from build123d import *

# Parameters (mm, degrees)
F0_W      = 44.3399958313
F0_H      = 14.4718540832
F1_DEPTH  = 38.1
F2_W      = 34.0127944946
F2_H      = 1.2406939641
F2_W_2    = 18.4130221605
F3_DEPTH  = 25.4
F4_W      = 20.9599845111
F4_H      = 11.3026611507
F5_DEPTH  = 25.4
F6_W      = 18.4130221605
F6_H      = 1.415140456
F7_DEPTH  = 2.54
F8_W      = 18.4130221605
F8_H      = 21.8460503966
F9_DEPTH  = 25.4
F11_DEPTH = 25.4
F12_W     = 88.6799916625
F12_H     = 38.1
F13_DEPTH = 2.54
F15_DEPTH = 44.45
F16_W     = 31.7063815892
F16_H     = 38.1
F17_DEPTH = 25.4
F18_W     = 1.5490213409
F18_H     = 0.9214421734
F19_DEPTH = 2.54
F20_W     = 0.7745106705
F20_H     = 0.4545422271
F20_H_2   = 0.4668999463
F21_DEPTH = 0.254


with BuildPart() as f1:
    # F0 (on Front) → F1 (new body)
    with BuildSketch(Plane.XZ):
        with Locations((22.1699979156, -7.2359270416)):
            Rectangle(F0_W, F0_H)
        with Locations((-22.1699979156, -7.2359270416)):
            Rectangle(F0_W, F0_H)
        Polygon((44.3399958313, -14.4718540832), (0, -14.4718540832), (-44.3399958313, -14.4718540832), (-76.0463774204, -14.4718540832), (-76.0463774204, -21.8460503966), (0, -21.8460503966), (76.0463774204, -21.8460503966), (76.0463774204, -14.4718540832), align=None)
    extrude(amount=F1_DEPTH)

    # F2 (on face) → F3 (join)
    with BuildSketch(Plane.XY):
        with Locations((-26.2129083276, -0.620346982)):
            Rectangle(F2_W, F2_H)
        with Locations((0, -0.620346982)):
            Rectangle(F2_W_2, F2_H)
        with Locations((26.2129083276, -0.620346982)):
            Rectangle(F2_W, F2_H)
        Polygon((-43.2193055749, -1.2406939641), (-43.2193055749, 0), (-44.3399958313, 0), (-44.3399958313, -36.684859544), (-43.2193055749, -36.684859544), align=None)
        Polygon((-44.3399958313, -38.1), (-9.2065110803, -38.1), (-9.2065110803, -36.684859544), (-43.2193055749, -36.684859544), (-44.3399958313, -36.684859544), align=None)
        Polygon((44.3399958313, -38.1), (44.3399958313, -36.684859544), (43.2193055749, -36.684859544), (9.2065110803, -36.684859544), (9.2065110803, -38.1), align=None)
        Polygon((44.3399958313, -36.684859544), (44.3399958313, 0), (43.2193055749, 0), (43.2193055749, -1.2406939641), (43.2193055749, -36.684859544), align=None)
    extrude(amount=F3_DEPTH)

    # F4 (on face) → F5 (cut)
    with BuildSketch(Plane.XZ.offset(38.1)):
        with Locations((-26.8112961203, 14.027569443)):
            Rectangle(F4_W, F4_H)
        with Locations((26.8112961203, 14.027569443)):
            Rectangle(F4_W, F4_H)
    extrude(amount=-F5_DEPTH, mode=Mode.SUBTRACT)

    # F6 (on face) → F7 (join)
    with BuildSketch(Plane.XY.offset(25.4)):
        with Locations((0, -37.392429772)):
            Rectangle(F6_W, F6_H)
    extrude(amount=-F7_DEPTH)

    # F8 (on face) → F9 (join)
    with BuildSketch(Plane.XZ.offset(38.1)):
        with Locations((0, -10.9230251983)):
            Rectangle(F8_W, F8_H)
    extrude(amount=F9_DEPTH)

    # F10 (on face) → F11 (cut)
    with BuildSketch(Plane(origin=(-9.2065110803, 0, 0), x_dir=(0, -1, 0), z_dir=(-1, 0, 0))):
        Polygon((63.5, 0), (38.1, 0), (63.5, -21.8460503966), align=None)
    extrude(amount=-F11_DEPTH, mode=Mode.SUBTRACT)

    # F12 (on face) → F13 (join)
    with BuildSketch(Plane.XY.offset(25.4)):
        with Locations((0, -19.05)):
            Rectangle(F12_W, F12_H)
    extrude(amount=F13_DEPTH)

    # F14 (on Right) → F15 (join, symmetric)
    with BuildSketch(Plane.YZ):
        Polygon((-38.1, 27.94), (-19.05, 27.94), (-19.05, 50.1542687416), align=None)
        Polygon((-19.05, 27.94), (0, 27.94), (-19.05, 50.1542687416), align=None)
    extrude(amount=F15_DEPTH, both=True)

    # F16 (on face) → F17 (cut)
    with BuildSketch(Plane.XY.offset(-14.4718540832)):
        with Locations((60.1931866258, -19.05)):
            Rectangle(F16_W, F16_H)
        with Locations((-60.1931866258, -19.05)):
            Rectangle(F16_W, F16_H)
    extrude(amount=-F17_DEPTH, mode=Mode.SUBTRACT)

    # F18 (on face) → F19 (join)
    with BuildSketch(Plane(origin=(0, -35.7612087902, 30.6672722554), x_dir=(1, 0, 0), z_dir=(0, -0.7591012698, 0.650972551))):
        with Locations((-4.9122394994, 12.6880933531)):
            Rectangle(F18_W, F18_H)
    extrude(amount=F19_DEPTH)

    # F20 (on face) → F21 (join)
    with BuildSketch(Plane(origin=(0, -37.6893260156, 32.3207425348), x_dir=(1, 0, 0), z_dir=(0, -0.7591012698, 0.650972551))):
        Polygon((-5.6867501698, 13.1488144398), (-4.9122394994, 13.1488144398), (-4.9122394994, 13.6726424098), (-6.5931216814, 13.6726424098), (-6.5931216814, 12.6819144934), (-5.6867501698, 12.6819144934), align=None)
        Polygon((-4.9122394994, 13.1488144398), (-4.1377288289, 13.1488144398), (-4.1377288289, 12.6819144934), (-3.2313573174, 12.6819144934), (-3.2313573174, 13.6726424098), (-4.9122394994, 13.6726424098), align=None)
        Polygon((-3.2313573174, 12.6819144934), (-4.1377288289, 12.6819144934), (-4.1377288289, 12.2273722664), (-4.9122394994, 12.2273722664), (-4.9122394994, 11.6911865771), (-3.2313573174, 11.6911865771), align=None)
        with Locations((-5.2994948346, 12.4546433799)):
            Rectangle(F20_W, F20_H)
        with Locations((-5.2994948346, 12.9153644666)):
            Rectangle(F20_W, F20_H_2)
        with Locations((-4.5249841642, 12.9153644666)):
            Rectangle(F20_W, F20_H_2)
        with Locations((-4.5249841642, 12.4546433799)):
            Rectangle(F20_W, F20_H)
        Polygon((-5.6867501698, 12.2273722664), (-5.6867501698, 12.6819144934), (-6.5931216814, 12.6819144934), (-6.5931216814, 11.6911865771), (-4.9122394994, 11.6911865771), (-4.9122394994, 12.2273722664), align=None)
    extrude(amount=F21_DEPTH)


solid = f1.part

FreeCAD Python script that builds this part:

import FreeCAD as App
import Part
import Sketcher
Q = App.Units.Quantity

doc = App.newDocument("Part")
body = doc.addObject("PartDesign::Body", "Body")

# Sketch on XZ plane
sketch1 = doc.addObject("Sketcher::SketchObject", "Sketch")
body.addObject(sketch1)
sketch1.AttachmentSupport = (doc.XZ_Plane, [""])
sketch1.MapMode = "FlatFace"
sketch1.addGeometry([
    Part.LineSegment(App.Vector(44, -14, 0), App.Vector(44, 0, 0)),  # 0
    Part.LineSegment(App.Vector(44, 0, 0), App.Vector(-44, 0, 0)),  # 1
    Part.LineSegment(App.Vector(-44, 0, 0), App.Vector(-44, -14, 0)),  # 2
    Part.LineSegment(App.Vector(-44, -14, 0), App.Vector(-76, -14, 0)),  # 3
    Part.LineSegment(App.Vector(-76, -14, 0), App.Vector(-76, -22, 0)),  # 4
    Part.LineSegment(App.Vector(-76, -22, 0), App.Vector(76, -22, 0)),  # 5
    Part.LineSegment(App.Vector(76, -22, 0), App.Vector(76, -14, 0)),  # 6
    Part.LineSegment(App.Vector(76, -14, 0), App.Vector(44, -14, 0)),  # 7
], False)
sketch1.addConstraint([
    Sketcher.Constraint("Coincident", 0, 2, 1, 1),
    Sketcher.Constraint("Coincident", 1, 2, 2, 1),
    Sketcher.Constraint("Coincident", 2, 2, 3, 1),
    Sketcher.Constraint("Coincident", 3, 2, 4, 1),
    Sketcher.Constraint("Coincident", 4, 2, 5, 1),
    Sketcher.Constraint("Coincident", 5, 2, 6, 1),
    Sketcher.Constraint("Coincident", 6, 2, 7, 1),
    Sketcher.Constraint("Coincident", 7, 2, 0, 1),
    Sketcher.Constraint("Vertical", 0),
    Sketcher.Constraint("Horizontal", 1),
    Sketcher.Constraint("Vertical", 2),
    Sketcher.Constraint("Horizontal", 3),
    Sketcher.Constraint("Vertical", 4),
    Sketcher.Constraint("Horizontal", 5),
    Sketcher.Constraint("Vertical", 6),
    Sketcher.Constraint("Horizontal", 7),
    Sketcher.Constraint("Symmetric", 0, 2, 1, 2, -1, 1),
    Sketcher.Constraint("Symmetric", 3, 2, 6, 2, -2),
    Sketcher.Constraint("DistanceX", 1, 2, 1, 1, Q("88.679992 mm")),
    Sketcher.Constraint("DistanceX", 3, 2, 3, 1, Q("31.706382 mm")),
    Sketcher.Constraint("DistanceY", 0, 1, 0, 2, Q("14.471854 mm")),
    Sketcher.Constraint("DistanceY", 4, 2, 4, 1, Q("7.374196 mm")),
])
pad1 = doc.addObject("PartDesign::Pad", "Pad")
body.addObject(pad1)
pad1.Profile = sketch1
pad1.Length = Q("1.5 in")

# Sketch on XY plane
sketch2 = doc.addObject("Sketcher::SketchObject", "Sketch001")
body.addObject(sketch2)
sketch2.AttachmentSupport = (doc.XY_Plane, [""])
sketch2.MapMode = "FlatFace"
sketch2.addGeometry([
    Part.LineSegment(App.Vector(-43.2, -1.2, 0), App.Vector(43.2, -1.2, 0)),  # 0
    Part.LineSegment(App.Vector(43.2, -1.2, 0), App.Vector(43.2, -36.7, 0)),  # 1
    Part.LineSegment(App.Vector(43.2, -36.7, 0), App.Vector(9.2, -36.7, 0)),  # 2
    Part.LineSegment(App.Vector(9.2, -36.7, 0), App.Vector(9.2, -38.1, 0)),  # 3
    Part.LineSegment(App.Vector(9.2, -38.1, 0), App.Vector(44.3, -38.1, 0)),  # 4
    Part.LineSegment(App.Vector(44.3, -38.1, 0), App.Vector(44.3, 0, 0)),  # 5
    Part.LineSegment(App.Vector(44.3, 0, 0), App.Vector(-44.3, 0, 0)),  # 6
    Part.LineSegment(App.Vector(-44.3, 0, 0), App.Vector(-44.3, -38.1, 0)),  # 7
    Part.LineSegment(App.Vector(-44.3, -38.1, 0), App.Vector(-9.2, -38.1, 0)),  # 8
    Part.LineSegment(App.Vector(-9.2, -38.1, 0), App.Vector(-9.2, -36.7, 0)),  # 9
    Part.LineSegment(App.Vector(-9.2, -36.7, 0), App.Vector(-43.2, -36.7, 0)),  # 10
    Part.LineSegment(App.Vector(-43.2, -36.7, 0), App.Vector(-43.2, -1.2, 0)),  # 11
], False)
sketch2.addConstraint([
    Sketcher.Constraint("Coincident", 0, 2, 1, 1),
    Sketcher.Constraint("Coincident", 1, 2, 2, 1),
    Sketcher.Constraint("Coincident", 2, 2, 3, 1),
    Sketcher.Constraint("Coincident", 3, 2, 4, 1),
    Sketcher.Constraint("Coincident", 4, 2, 5, 1),
    Sketcher.Constraint("Coincident", 5, 2, 6, 1),
    Sketcher.Constraint("Coincident", 6, 2, 7, 1),
    Sketcher.Constraint("Coincident", 7, 2, 8, 1),
    Sketcher.Constraint("Coincident", 8, 2, 9, 1),
    Sketcher.Constraint("Coincident", 9, 2, 10, 1),
    Sketcher.Constraint("Coincident", 10, 2, 11, 1),
    Sketcher.Constraint("Coincident", 11, 2, 0, 1),
    Sketcher.Constraint("Horizontal", 0),
    Sketcher.Constraint("Vertical", 1),
    Sketcher.Constraint("Horizontal", 2),
    Sketcher.Constraint("Vertical", 3),
    Sketcher.Constraint("Horizontal", 4),
    Sketcher.Constraint("Vertical", 5),
    Sketcher.Constraint("Horizontal", 6),
    Sketcher.Constraint("Vertical", 7),
    Sketcher.Constraint("Horizontal", 8),
    Sketcher.Constraint("Vertical", 9),
    Sketcher.Constraint("Horizontal", 10),
    Sketcher.Constraint("Vertical", 11),
    Sketcher.Constraint("Symmetric", 5, 2, 6, 2, -1, 1),
    Sketcher.Constraint("Symmetric", 3, 2, 8, 2, -2),
    Sketcher.Constraint("Symmetric", 1, 2, 10, 2, -2),
    Sketcher.Constraint("DistanceY", 5, 1, 5, 2, Q("1.5 in")),
    Sketcher.Constraint("DistanceX", 0, 1, 0, 2, Q("86.438611 mm")),
    Sketcher.Constraint("DistanceX", 6, 2, 6, 1, Q("88.679992 mm")),
    Sketcher.Constraint("DistanceY", 3, 2, 3, 1, Q("1.41514 mm")),
    Sketcher.Constraint("DistanceX", 2, 2, 2, 1, Q("34.012794 mm")),
    Sketcher.Constraint("DistanceY", 1, 2, 1, 1, Q("35.444166 mm")),
])
pad2 = doc.addObject("PartDesign::Pad", "Pad001")
body.addObject(pad2)
pad2.Profile = sketch2
pad2.Length = Q("1 in")

# Sketch on XZ plane
sketch3 = doc.addObject("Sketcher::SketchObject", "Sketch002")
body.addObject(sketch3)
sketch3.AttachmentSupport = (doc.XZ_Plane, [""])
sketch3.MapMode = "FlatFace"
sketch3.AttachmentOffset = App.Placement(App.Vector(0, 0, 1.5 * 25.4), App.Rotation())
sketch3.addGeometry([
    Part.LineSegment(App.Vector(-37, 20, 0), App.Vector(-37, 8, 0)),  # 0
    Part.LineSegment(App.Vector(-37, 8, 0), App.Vector(-16, 8, 0)),  # 1
    Part.LineSegment(App.Vector(-16, 8, 0), App.Vector(-16, 20, 0)),  # 2
    Part.LineSegment(App.Vector(-16, 20, 0), App.Vector(-37, 20, 0)),  # 3
    Part.LineSegment(App.Vector(16, 20, 0), App.Vector(16, 8, 0)),  # 4
    Part.LineSegment(App.Vector(16, 8, 0), App.Vector(37, 8, 0)),  # 5
    Part.LineSegment(App.Vector(37, 8, 0), App.Vector(37, 20, 0)),  # 6
    Part.LineSegment(App.Vector(37, 20, 0), App.Vector(16, 20, 0)),  # 7
], False)
sketch3.addConstraint([
    Sketcher.Constraint("Coincident", 0, 2, 1, 1),
    Sketcher.Constraint("Coincident", 1, 2, 2, 1),
    Sketcher.Constraint("Coincident", 2, 2, 3, 1),
    Sketcher.Constraint("Coincident", 3, 2, 0, 1),
    Sketcher.Constraint("Coincident", 4, 2, 5, 1),
    Sketcher.Constraint("Coincident", 5, 2, 6, 1),
    Sketcher.Constraint("Coincident", 6, 2, 7, 1),
    Sketcher.Constraint("Coincident", 7, 2, 4, 1),
    Sketcher.Constraint("Vertical", 0),
    Sketcher.Constraint("Horizontal", 1),
    Sketcher.Constraint("Vertical", 2),
    Sketcher.Constraint("Horizontal", 3),
    Sketcher.Constraint("Vertical", 4),
    Sketcher.Constraint("Horizontal", 5),
    Sketcher.Constraint("Vertical", 6),
    Sketcher.Constraint("Horizontal", 7),
    Sketcher.Constraint("Symmetric", 1, 2, 4, 2, -2),
    Sketcher.Constraint("Symmetric", 3, 2, 6, 2, -2),
    Sketcher.Constraint("DistanceY", 0, 2, 0, 1, Q("11.302661 mm")),
    Sketcher.Constraint("DistanceY", -1, 1, 2, 2, Q("19.6789 mm")),
    Sketcher.Constraint("DistanceX", 1, 1, 1, 2, Q("20.959985 mm")),
    Sketcher.Constraint("DistanceX", 0, 2, -1, 1, Q("37.291288 mm")),
])
pocket1 = doc.addObject("PartDesign::Pocket", "Pocket")
body.addObject(pocket1)
pocket1.Profile = sketch3
pocket1.Length = Q("1 in")

# Sketch on XY plane
sketch4 = doc.addObject("Sketcher::SketchObject", "Sketch003")
body.addObject(sketch4)
sketch4.AttachmentSupport = (doc.XY_Plane, [""])
sketch4.MapMode = "FlatFace"
sketch4.AttachmentOffset = App.Placement(App.Vector(0, 0, 1 * 25.4), App.Rotation())
sketch4.addGeometry([
    Part.LineSegment(App.Vector(-9.2, -36.7, 0), App.Vector(-9.2, -38.1, 0)),
    Part.LineSegment(App.Vector(-9.2, -38.1, 0), App.Vector(9.2, -38.1, 0)),
    Part.LineSegment(App.Vector(9.2, -38.1, 0), App.Vector(9.2, -36.7, 0)),
    Part.LineSegment(App.Vector(9.2, -36.7, 0), App.Vector(-9.2, -36.7, 0)),
], False)
sketch4.addConstraint([
    Sketcher.Constraint("Coincident", 0, 2, 1, 1),
    Sketcher.Constraint("Coincident", 1, 2, 2, 1),
    Sketcher.Constraint("Coincident", 2, 2, 3, 1),
    Sketcher.Constraint("Coincident", 3, 2, 0, 1),
    Sketcher.Constraint("Vertical", 0),
    Sketcher.Constraint("Horizontal", 1),
    Sketcher.Constraint("Vertical", 2),
    Sketcher.Constraint("Horizontal", 3),
    Sketcher.Constraint("DistanceY", 0, 2, -1, 1, Q("1.5 in")),
    Sketcher.Constraint("DistanceY", 0, 2, 0, 1, Q("1.41514 mm")),
    Sketcher.Constraint("DistanceX", 1, 1, 1, 2, Q("18.413022 mm")),
    Sketcher.Constraint("DistanceX", 0, 2, -1, 1, Q("9.206511 mm")),
])
pad3 = doc.addObject("PartDesign::Pad", "Pad002")
body.addObject(pad3)
pad3.Profile = sketch4
pad3.Length = Q("0.1 in")
pad3.Reversed = True

# Sketch on XZ plane
sketch5 = doc.addObject("Sketcher::SketchObject", "Sketch004")
body.addObject(sketch5)
sketch5.AttachmentSupport = (doc.XZ_Plane, [""])
sketch5.MapMode = "FlatFace"
sketch5.AttachmentOffset = App.Placement(App.Vector(0, 0, 1.5 * 25.4), App.Rotation())
sketch5.addGeometry([
    Part.LineSegment(App.Vector(-9, 0, 0), App.Vector(-9, -22, 0)),
    Part.LineSegment(App.Vector(-9, -22, 0), App.Vector(9, -22, 0)),
    Part.LineSegment(App.Vector(9, -22, 0), App.Vector(9, 0, 0)),
    Part.LineSegment(App.Vector(9, 0, 0), App.Vector(-9, 0, 0)),
], False)
sketch5.addConstraint([
    Sketcher.Constraint("Coincident", 0, 2, 1, 1),
    Sketcher.Constraint("Coincident", 1, 2, 2, 1),
    Sketcher.Constraint("Coincident", 2, 2, 3, 1),
    Sketcher.Constraint("Coincident", 3, 2, 0, 1),
    Sketcher.Constraint("Vertical", 0),
    Sketcher.Constraint("Horizontal", 1),
    Sketcher.Constraint("Vertical", 2),
    Sketcher.Constraint("Horizontal", 3),
    Sketcher.Constraint("Symmetric", 2, 2, 3, 2, -1, 1),
    Sketcher.Constraint("DistanceY", 0, 2, 0, 1, Q("21.84605 mm")),
    Sketcher.Constraint("DistanceX", 1, 1, 1, 2, Q("18.413022 mm")),
])
pad4 = doc.addObject("PartDesign::Pad", "Pad003")
body.addObject(pad4)
pad4.Profile = sketch5
pad4.Length = Q("1 in")

# Sketch on YZ plane
sketch6 = doc.addObject("Sketcher::SketchObject", "Sketch005")
body.addObject(sketch6)
sketch6.AttachmentSupport = (doc.YZ_Plane, [""])
sketch6.MapMode = "FlatFace"
sketch6.AttachmentOffset = App.Placement(App.Vector(0, 0, -9.206511), App.Rotation())
sketch6.addGeometry([
    Part.LineSegment(App.Vector(-64, 0, 0), App.Vector(-38, 0, 0)),
    Part.LineSegment(App.Vector(-38, 0, 0), App.Vector(-64, -22, 0)),
    Part.LineSegment(App.Vector(-64, -22, 0), App.Vector(-64, 0, 0)),
], False)
sketch6.addConstraint([
    Sketcher.Constraint("Coincident", 0, 2, 1, 1),
    Sketcher.Constraint("Coincident", 1, 2, 2, 1),
    Sketcher.Constraint("Coincident", 2, 2, 0, 1),
    Sketcher.Constraint("Horizontal", 0),
    Sketcher.Constraint("Vertical", 2),
    Sketcher.Constraint("PointOnObject", 0, 2, -1),
    Sketcher.Constraint("DistanceX", 0, 1, 0, 2, Q("1 in")),
    Sketcher.Constraint("DistanceX", 0, 2, -1, 1, Q("1.5 in")),
    Sketcher.Constraint("DistanceY", 2, 1, 2, 2, Q("21.84605 mm")),
])
pocket2 = doc.addObject("PartDesign::Pocket", "Pocket001")
body.addObject(pocket2)
pocket2.Profile = sketch6
pocket2.Length = Q("1 in")
pocket2.Reversed = True

# Sketch on XY plane
sketch7 = doc.addObject("Sketcher::SketchObject", "Sketch006")
body.addObject(sketch7)
sketch7.AttachmentSupport = (doc.XY_Plane, [""])
sketch7.MapMode = "FlatFace"
sketch7.AttachmentOffset = App.Placement(App.Vector(0, 0, 1 * 25.4), App.Rotation())
sketch7.addGeometry([
    Part.LineSegment(App.Vector(-44, 0, 0), App.Vector(-44, -38, 0)),
    Part.LineSegment(App.Vector(-44, -38, 0), App.Vector(44, -38, 0)),
    Part.LineSegment(App.Vector(44, -38, 0), App.Vector(44, 0, 0)),
    Part.LineSegment(App.Vector(44, 0, 0), App.Vector(-44, 0, 0)),
], False)
sketch7.addConstraint([
    Sketcher.Constraint("Coincident", 0, 2, 1, 1),
    Sketcher.Constraint("Coincident", 1, 2, 2, 1),
    Sketcher.Constraint("Coincident", 2, 2, 3, 1),
    Sketcher.Constraint("Coincident", 3, 2, 0, 1),
    Sketcher.Constraint("Vertical", 0),
    Sketcher.Constraint("Horizontal", 1),
    Sketcher.Constraint("Vertical", 2),
    Sketcher.Constraint("Horizontal", 3),
    Sketcher.Constraint("Symmetric", 2, 2, 3, 2, -1, 1),
    Sketcher.Constraint("DistanceY", 0, 2, 0, 1, Q("1.5 in")),
    Sketcher.Constraint("DistanceX", 1, 1, 1, 2, Q("88.679992 mm")),
])
pad5 = doc.addObject("PartDesign::Pad", "Pad004")
body.addObject(pad5)
pad5.Profile = sketch7
pad5.Length = Q("0.1 in")

# Sketch on YZ plane
sketch8 = doc.addObject("Sketcher::SketchObject", "Sketch007")
body.addObject(sketch8)
sketch8.AttachmentSupport = (doc.YZ_Plane, [""])
sketch8.MapMode = "FlatFace"
sketch8.addGeometry([
    Part.LineSegment(App.Vector(-38, 28, 0), App.Vector(0, 28, 0)),
    Part.LineSegment(App.Vector(0, 28, 0), App.Vector(-19, 50, 0)),
    Part.LineSegment(App.Vector(-19, 50, 0), App.Vector(-38, 28, 0)),
], False)
sketch8.addConstraint([
    Sketcher.Constraint("Coincident", 0, 2, 1, 1),
    Sketcher.Constraint("Coincident", 1, 2, 2, 1),
    Sketcher.Constraint("Coincident", 2, 2, 0, 1),
    Sketcher.Constraint("Horizontal", 0),
    Sketcher.Constraint("PointOnObject", 0, 2, -2),
    Sketcher.Constraint("Equal", 1, 2),
    Sketcher.Constraint("DistanceX", 0, 1, 0, 2, Q("1.5 in")),
    Sketcher.Constraint("DistanceY", -1, 1, 0, 2, Q("1.1 in")),
    Sketcher.Constraint("DistanceY", -1, 1, 1, 2, Q("50.154269 mm")),
])
pad6 = doc.addObject("PartDesign::Pad", "Pad005")
body.addObject(pad6)
pad6.Profile = sketch8
pad6.Length = Q("3.5 in")
pad6.Midplane = True

# Sketch on XY plane
sketch9 = doc.addObject("Sketcher::SketchObject", "Sketch008")
body.addObject(sketch9)
sketch9.AttachmentSupport = (doc.XY_Plane, [""])
sketch9.MapMode = "FlatFace"
sketch9.AttachmentOffset = App.Placement(App.Vector(0, 0, -14.471854), App.Rotation())
sketch9.addGeometry([
    Part.LineSegment(App.Vector(44, 0, 0), App.Vector(44, -38, 0)),  # 0
    Part.LineSegment(App.Vector(44, -38, 0), App.Vector(76, -38, 0)),  # 1
    Part.LineSegment(App.Vector(76, -38, 0), App.Vector(76, 0, 0)),  # 2
    Part.LineSegment(App.Vector(76, 0, 0), App.Vector(44, 0, 0)),  # 3
    Part.LineSegment(App.Vector(-76, 0, 0), App.Vector(-76, -38, 0)),  # 4
    Part.LineSegment(App.Vector(-76, -38, 0), App.Vector(-44, -38, 0)),  # 5
    Part.LineSegment(App.Vector(-44, -38, 0), App.Vector(-44, 0, 0)),  # 6
    Part.LineSegment(App.Vector(-44, 0, 0), App.Vector(-76, 0, 0)),  # 7
], False)
sketch9.addConstraint([
    Sketcher.Constraint("Coincident", 0, 2, 1, 1),
    Sketcher.Constraint("Coincident", 1, 2, 2, 1),
    Sketcher.Constraint("Coincident", 2, 2, 3, 1),
    Sketcher.Constraint("Coincident", 3, 2, 0, 1),
    Sketcher.Constraint("Coincident", 4, 2, 5, 1),
    Sketcher.Constraint("Coincident", 5, 2, 6, 1),
    Sketcher.Constraint("Coincident", 6, 2, 7, 1),
    Sketcher.Constraint("Coincident", 7, 2, 4, 1),
    Sketcher.Constraint("Vertical", 0),
    Sketcher.Constraint("Horizontal", 1),
    Sketcher.Constraint("Vertical", 2),
    Sketcher.Constraint("Horizontal", 3),
    Sketcher.Constraint("Vertical", 4),
    Sketcher.Constraint("Horizontal", 5),
    Sketcher.Constraint("Vertical", 6),
    Sketcher.Constraint("Horizontal", 7),
    Sketcher.Constraint("Symmetric", 3, 2, 6, 2, -1, 1),
    Sketcher.Constraint("Symmetric", 1, 2, 4, 2, -2),
    Sketcher.Constraint("PointOnObject", 2, 2, -1),
    Sketcher.Constraint("DistanceY", 0, 2, 0, 1, Q("1.5 in")),
    Sketcher.Constraint("DistanceX", 1, 1, 1, 2, Q("31.706382 mm")),
    Sketcher.Constraint("DistanceX", 5, 2, 0, 2, Q("88.679992 mm")),
])
pocket3 = doc.addObject("PartDesign::Pocket", "Pocket002")
body.addObject(pocket3)
pocket3.Profile = sketch9
pocket3.Length = Q("1 in")

# Sketch on an angled plane
sketch10 = doc.addObject("Sketcher::SketchObject", "Sketch009")
body.addObject(sketch10)
sketch10.Placement = App.Placement(App.Vector(0, -35.761209, 30.667272), App.Rotation(App.Vector(1, 0, 0), App.Vector(0, 0.650972551, 0.75910127), App.Vector(0, -0.75910127, 0.650972551), "ZXY"))
sketch10.addGeometry([
    Part.LineSegment(App.Vector(-5.7, 13.1, 0), App.Vector(-5.7, 12.2, 0)),
    Part.LineSegment(App.Vector(-5.7, 12.2, 0), App.Vector(-4.1, 12.2, 0)),
    Part.LineSegment(App.Vector(-4.1, 12.2, 0), App.Vector(-4.1, 13.1, 0)),
    Part.LineSegment(App.Vector(-4.1, 13.1, 0), App.Vector(-5.7, 13.1, 0)),
], False)
sketch10.addConstraint([
    Sketcher.Constraint("Coincident", 0, 2, 1, 1),
    Sketcher.Constraint("Coincident", 1, 2, 2, 1),
    Sketcher.Constraint("Coincident", 2, 2, 3, 1),
    Sketcher.Constraint("Coincident", 3, 2, 0, 1),
    Sketcher.Constraint("Vertical", 0),
    Sketcher.Constraint("Horizontal", 1),
    Sketcher.Constraint("Vertical", 2),
    Sketcher.Constraint("Horizontal", 3),
    Sketcher.Constraint("DistanceX", 1, 1, 1, 2, Q("1.549021 mm")),
    Sketcher.Constraint("DistanceY", 0, 2, 0, 1, Q("0.921442 mm")),
    Sketcher.Constraint("DistanceX", 0, 2, -1, 1, Q("5.68675 mm")),
    Sketcher.Constraint("DistanceY", -1, 1, 0, 2, Q("12.227372 mm")),
])
pad7 = doc.addObject("PartDesign::Pad", "Pad006")
body.addObject(pad7)
pad7.Profile = sketch10
pad7.Length = Q("0.1 in")

# Sketch on an angled plane
sketch11 = doc.addObject("Sketcher::SketchObject", "Sketch010")
body.addObject(sketch11)
sketch11.Placement = App.Placement(App.Vector(0, -37.689326, 32.320743), App.Rotation(App.Vector(1, 0, 0), App.Vector(0, 0.650972551, 0.75910127), App.Vector(0, -0.75910127, 0.650972551), "ZXY"))
sketch11.addGeometry([
    Part.LineSegment(App.Vector(-3.2, 11.7, 0), App.Vector(-3.2, 13.7, 0)),
    Part.LineSegment(App.Vector(-3.2, 13.7, 0), App.Vector(-6.6, 13.7, 0)),
    Part.LineSegment(App.Vector(-6.6, 13.7, 0), App.Vector(-6.6, 11.7, 0)),
    Part.LineSegment(App.Vector(-6.6, 11.7, 0), App.Vector(-3.2, 11.7, 0)),
], False)
sketch11.addConstraint([
    Sketcher.Constraint("Coincident", 0, 2, 1, 1),
    Sketcher.Constraint("Coincident", 1, 2, 2, 1),
    Sketcher.Constraint("Coincident", 2, 2, 3, 1),
    Sketcher.Constraint("Coincident", 3, 2, 0, 1),
    Sketcher.Constraint("Vertical", 0),
    Sketcher.Constraint("Horizontal", 1),
    Sketcher.Constraint("Vertical", 2),
    Sketcher.Constraint("Horizontal", 3),
    Sketcher.Constraint("DistanceX", 1, 2, 1, 1, Q("3.361764 mm")),
    Sketcher.Constraint("DistanceY", 0, 1, 0, 2, Q("1.981456 mm")),
    Sketcher.Constraint("DistanceX", 1, 2, -1, 1, Q("6.593122 mm")),
    Sketcher.Constraint("DistanceY", -1, 1, 0, 2, Q("13.672642 mm")),
])
pad8 = doc.addObject("PartDesign::Pad", "Pad007")
body.addObject(pad8)
pad8.Profile = sketch11
pad8.Length = Q("0.01 in")

doc.recompute()
